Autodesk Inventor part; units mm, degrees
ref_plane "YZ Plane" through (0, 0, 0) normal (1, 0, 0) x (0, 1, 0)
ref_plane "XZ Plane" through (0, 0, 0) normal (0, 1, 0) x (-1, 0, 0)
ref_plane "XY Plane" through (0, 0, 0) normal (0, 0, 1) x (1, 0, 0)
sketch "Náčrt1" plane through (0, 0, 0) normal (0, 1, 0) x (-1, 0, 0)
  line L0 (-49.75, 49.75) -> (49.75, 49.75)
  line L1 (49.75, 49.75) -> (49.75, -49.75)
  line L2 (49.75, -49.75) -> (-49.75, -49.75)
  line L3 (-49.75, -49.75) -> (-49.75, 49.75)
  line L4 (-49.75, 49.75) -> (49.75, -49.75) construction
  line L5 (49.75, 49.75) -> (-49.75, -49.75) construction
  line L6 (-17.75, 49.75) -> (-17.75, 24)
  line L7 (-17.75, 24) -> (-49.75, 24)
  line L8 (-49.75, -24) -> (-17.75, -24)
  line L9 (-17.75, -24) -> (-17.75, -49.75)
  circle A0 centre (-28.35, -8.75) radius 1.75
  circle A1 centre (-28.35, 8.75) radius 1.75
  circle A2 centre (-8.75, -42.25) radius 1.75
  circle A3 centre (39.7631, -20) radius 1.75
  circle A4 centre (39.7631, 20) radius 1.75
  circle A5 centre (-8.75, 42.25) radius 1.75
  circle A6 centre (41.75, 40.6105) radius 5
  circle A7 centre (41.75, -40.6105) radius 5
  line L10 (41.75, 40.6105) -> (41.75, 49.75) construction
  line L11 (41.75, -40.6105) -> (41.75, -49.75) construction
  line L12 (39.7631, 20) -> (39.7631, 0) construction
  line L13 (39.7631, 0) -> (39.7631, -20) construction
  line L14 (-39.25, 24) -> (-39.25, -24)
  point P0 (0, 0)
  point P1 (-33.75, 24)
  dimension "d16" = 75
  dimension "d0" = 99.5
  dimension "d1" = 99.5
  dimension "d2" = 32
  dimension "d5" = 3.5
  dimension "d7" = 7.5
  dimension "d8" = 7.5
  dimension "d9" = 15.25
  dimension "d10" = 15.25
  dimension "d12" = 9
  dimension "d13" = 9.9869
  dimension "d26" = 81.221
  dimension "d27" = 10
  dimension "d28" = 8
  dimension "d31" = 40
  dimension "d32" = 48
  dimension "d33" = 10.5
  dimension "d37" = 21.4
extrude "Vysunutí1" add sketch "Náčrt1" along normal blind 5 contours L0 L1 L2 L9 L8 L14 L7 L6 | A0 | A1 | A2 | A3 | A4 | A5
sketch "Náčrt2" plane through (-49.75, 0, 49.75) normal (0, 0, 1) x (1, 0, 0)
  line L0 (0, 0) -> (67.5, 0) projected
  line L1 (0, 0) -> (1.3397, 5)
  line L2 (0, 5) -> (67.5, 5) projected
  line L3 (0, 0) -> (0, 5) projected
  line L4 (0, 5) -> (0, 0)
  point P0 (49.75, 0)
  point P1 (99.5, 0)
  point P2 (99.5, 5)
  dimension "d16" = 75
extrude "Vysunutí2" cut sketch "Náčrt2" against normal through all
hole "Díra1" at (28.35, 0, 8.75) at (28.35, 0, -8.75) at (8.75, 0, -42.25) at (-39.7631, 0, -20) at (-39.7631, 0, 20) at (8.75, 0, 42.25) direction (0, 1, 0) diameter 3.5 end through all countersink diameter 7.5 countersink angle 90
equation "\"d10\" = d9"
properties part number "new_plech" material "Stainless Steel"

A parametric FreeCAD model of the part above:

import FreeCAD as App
import Part
import Sketcher

V = App.Vector
Q = App.Units.Quantity

doc = App.newDocument("Part")
body = doc.addObject("PartDesign::Body", "Body")

sketch1 = doc.addObject("Sketcher::SketchObject", "Sketch")
body.addObject(sketch1)
sketch1.AttachmentSupport = (doc.XZ_Plane, [""])
sketch1.MapMode = "FlatFace"
sketch1.addGeometry([
    Part.LineSegment(V(-49.75, 49.75, 0), V(17.75, 49.75, 0)),
    Part.LineSegment(V(17.75, 49.75, 0), V(17.75, 24, 0)),
    Part.LineSegment(V(17.75, 24, 0), V(39.25, 24, 0)),
    Part.LineSegment(V(39.25, 24, 0), V(39.25, -24, 0)),
    Part.LineSegment(V(39.25, -24, 0), V(17.75, -24, 0)),
    Part.LineSegment(V(17.75, -24, 0), V(17.75, -49.75, 0)),
    Part.LineSegment(V(17.75, -49.75, 0), V(-49.75, -49.75, 0)),
    Part.LineSegment(V(-49.75, -49.75, 0), V(-49.75, 49.75, 0)),
    Part.Circle(V(-41.75, -40.6105, 0), V(0, 0, 1), 5),
    Part.Circle(V(-41.75, 40.6105, 0), V(0, 0, 1), 5),
], False)
sketch1.addConstraint([
    Sketcher.Constraint("Coincident", 0, 2, 1, 1),
    Sketcher.Constraint("Coincident", 1, 2, 2, 1),
    Sketcher.Constraint("Coincident", 2, 2, 3, 1),
    Sketcher.Constraint("Coincident", 3, 2, 4, 1),
    Sketcher.Constraint("Coincident", 4, 2, 5, 1),
    Sketcher.Constraint("Coincident", 5, 2, 6, 1),
    Sketcher.Constraint("Coincident", 6, 2, 7, 1),
    Sketcher.Constraint("Coincident", 7, 2, 0, 1),
    Sketcher.Constraint("Horizontal", 0),
    Sketcher.Constraint("Vertical", 1),
    Sketcher.Constraint("Horizontal", 2),
    Sketcher.Constraint("Vertical", 3),
    Sketcher.Constraint("Horizontal", 4),
    Sketcher.Constraint("Vertical", 5),
    Sketcher.Constraint("Horizontal", 6),
    Sketcher.Constraint("Vertical", 7),
    Sketcher.Constraint("Equal", 8, 9),
    Sketcher.Constraint("Symmetric", 8, 3, 9, 3, -1),
    Sketcher.Constraint("Symmetric", 1, 2, 4, 2, -1),
    Sketcher.Constraint("Equal", 1, 5),
    Sketcher.Constraint("Diameter", 8, 10.0),
    Sketcher.Constraint("DistanceY", 3, 2, 3, 1, 48.0),
    Sketcher.Constraint("DistanceY", 7, 1, 7, 2, 99.5),
    Sketcher.Constraint("DistanceX", 6, 2, 8, 3, 8.0),
    Sketcher.Constraint("DistanceX", 0, 1, 0, 2, 67.5),
    Sketcher.Constraint("DistanceX", 2, 1, 2, 2, 21.5),
    Sketcher.Constraint("DistanceY", 8, 3, 9, 3, 81.221),
    Sketcher.Constraint("DistanceX", 8, 3, -1, 1, 41.75),
])
pad1 = doc.addObject("PartDesign::Pad", "Pad")
body.addObject(pad1)
pad1.Profile = sketch1
pad1.Length = 5
pad1.Reversed = True

sketch2 = doc.addObject("Sketcher::SketchObject", "Sketch001")
body.addObject(sketch2)
sketch2.AttachmentSupport = (doc.XY_Plane, [""])
sketch2.MapMode = "FlatFace"
sketch2.AttachmentOffset = App.Placement(V(0, 0, 49.75), App.Rotation())
sketch2.addGeometry([
    Part.LineSegment(V(-49.75, 5, 0), V(-49.75, 0, 0)),
    Part.LineSegment(V(-49.75, 0, 0), V(-48.4103, 5, 0)),
    Part.LineSegment(V(-48.4103, 5, 0), V(-49.75, 5, 0)),
], False)
sketch2.addConstraint([
    Sketcher.Constraint("Coincident", 0, 2, 1, 1),
    Sketcher.Constraint("Coincident", 1, 2, 2, 1),
    Sketcher.Constraint("Coincident", 2, 2, 0, 1),
    Sketcher.Constraint("Vertical", 0),
    Sketcher.Constraint("Horizontal", 2),
    Sketcher.Constraint("PointOnObject", 0, 2, -1),
    Sketcher.Constraint("Angle", 1, Q("75.0005 deg")),
    Sketcher.Constraint("DistanceY", 0, 2, 0, 1, 5.0),
    Sketcher.Constraint("DistanceX", 0, 2, -1, 1, 49.75),
])
pocket1 = doc.addObject("PartDesign::Pocket", "Pocket")
body.addObject(pocket1)
pocket1.Profile = sketch2
pocket1.Type = "ThroughAll"

sketch3 = doc.addObject("Sketcher::SketchObject", "Sketch002")
body.addObject(sketch3)
sketch3.AttachmentSupport = (doc.XZ_Plane, [""])
sketch3.MapMode = "FlatFace"
sketch3.addGeometry([
    Part.Circle(V(28.35, 8.75, 0), V(0, 0, 1), 1.75),
    Part.Circle(V(28.35, -8.75, 0), V(0, 0, 1), 1.75),
    Part.Circle(V(8.75, -42.25, 0), V(0, 0, 1), 1.75),
    Part.Circle(V(-39.7631, -20, 0), V(0, 0, 1), 1.75),
    Part.Circle(V(-39.7631, 20, 0), V(0, 0, 1), 1.75),
    Part.Circle(V(8.75, 42.25, 0), V(0, 0, 1), 1.75),
], False)
sketch3.addConstraint([
    Sketcher.Constraint("Equal", 0, 1),
    Sketcher.Constraint("Equal", 1, 2),
    Sketcher.Constraint("Equal", 2, 3),
    Sketcher.Constraint("Equal", 3, 4),
    Sketcher.Constraint("Equal", 4, 5),
    Sketcher.Constraint("Symmetric", 0, 3, 1, 3, -1),
    Sketcher.Constraint("Symmetric", 3, 3, 4, 3, -1),
    Sketcher.Constraint("Symmetric", 2, 3, 5, 3, -1),
    Sketcher.Constraint("Diameter", 0, 3.5),
    Sketcher.Constraint("DistanceY", 3, 3, -1, 1, 20.0),
    Sketcher.Constraint("DistanceY", 2, 3, 0, 3, 51.0),
    Sketcher.Constraint("DistanceY", 1, 3, 0, 3, 17.5),
    Sketcher.Constraint("DistanceX", 2, 3, 1, 3, 19.6),
    Sketcher.Constraint("DistanceX", -1, 1, 0, 3, 28.35),
    Sketcher.Constraint("DistanceX", 3, 3, -1, 1, 39.763),
])
doc.recompute()
hole = doc.addObject("PartDesign::Hole", "Hole")
body.addObject(hole)
hole.Profile = sketch3
hole.ThreadType = "None"
hole.Diameter = 3.5
hole.DepthType = "ThroughAll"
hole.HoleCutType = "Countersink"
hole.HoleCutDiameter = 7.5
hole.HoleCutCountersinkAngle = 90

doc.recompute()
